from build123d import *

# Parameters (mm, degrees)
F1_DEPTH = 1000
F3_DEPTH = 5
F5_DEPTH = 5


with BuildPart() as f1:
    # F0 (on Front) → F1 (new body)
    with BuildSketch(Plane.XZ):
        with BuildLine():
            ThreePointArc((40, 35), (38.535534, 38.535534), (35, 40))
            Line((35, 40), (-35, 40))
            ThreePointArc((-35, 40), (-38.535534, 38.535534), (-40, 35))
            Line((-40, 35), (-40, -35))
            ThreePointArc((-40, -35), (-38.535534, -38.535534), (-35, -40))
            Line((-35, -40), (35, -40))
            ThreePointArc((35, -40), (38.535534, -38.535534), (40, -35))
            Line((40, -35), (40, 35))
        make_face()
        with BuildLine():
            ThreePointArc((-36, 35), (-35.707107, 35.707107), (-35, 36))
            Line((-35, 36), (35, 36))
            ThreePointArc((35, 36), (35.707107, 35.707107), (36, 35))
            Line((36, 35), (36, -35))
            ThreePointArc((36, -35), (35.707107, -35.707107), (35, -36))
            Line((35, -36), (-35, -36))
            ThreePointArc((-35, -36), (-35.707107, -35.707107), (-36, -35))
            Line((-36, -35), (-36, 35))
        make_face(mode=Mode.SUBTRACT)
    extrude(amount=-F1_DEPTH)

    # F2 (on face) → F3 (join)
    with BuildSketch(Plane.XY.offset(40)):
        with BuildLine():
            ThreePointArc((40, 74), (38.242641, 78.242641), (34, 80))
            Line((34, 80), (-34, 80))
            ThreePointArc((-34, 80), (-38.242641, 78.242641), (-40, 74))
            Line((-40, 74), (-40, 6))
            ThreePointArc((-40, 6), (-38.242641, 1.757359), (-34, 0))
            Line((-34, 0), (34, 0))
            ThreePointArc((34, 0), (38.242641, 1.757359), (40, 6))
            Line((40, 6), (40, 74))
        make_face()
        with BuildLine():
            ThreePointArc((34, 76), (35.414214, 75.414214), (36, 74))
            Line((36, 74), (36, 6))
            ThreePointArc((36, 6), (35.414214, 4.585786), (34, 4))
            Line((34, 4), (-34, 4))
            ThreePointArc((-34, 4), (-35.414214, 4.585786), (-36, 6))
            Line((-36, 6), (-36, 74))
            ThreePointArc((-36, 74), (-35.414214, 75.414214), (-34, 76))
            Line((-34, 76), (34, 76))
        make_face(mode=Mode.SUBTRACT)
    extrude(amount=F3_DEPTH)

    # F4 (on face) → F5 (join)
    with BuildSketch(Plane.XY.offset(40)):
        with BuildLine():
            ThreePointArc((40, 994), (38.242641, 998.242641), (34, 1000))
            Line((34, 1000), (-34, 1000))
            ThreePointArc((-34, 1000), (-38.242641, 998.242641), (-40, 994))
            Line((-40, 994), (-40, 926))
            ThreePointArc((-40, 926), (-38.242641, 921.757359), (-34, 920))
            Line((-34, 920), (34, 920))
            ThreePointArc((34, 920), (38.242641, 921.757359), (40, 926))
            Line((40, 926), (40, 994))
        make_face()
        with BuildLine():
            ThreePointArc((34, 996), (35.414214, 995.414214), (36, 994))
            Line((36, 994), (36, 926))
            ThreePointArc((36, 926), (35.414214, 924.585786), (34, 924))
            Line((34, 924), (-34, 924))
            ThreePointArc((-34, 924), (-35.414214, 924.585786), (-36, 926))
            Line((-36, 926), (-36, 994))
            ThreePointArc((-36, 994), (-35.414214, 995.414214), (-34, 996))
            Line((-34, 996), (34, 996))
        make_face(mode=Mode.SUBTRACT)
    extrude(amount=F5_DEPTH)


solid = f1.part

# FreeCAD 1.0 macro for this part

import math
import FreeCAD as App
import Part
import Sketcher
from FreeCAD import Vector
Q = App.Units.Quantity

doc = App.newDocument("Part")
body = doc.addObject("PartDesign::Body", "Body")

sketch1 = body.newObject("Sketcher::SketchObject", "Sketch")
sketch1.AttachmentSupport = (doc.getObject("XZ_Plane"), [""])
sketch1.MapMode = "FlatFace"
sketch1.addGeometry(Part.ArcOfCircle(Part.Circle(Vector(35, 35, 0), Vector(0, 0, 1), 5), math.radians(0), math.radians(90)), False)
sketch1.addGeometry(Part.LineSegment(Vector(35, 40, 0), Vector(-35, 40, 0)), False)
sketch1.addGeometry(Part.ArcOfCircle(Part.Circle(Vector(-35, 35, 0), Vector(0, 0, 1), 5), math.radians(90), math.radians(180)), False)
sketch1.addGeometry(Part.LineSegment(Vector(-40, 35, 0), Vector(-40, -35, 0)), False)
sketch1.addGeometry(Part.ArcOfCircle(Part.Circle(Vector(-35, -35, 0), Vector(0, 0, 1), 5), math.radians(180), math.radians(270)), False)
sketch1.addGeometry(Part.LineSegment(Vector(-35, -40, 0), Vector(35, -40, 0)), False)
sketch1.addGeometry(Part.ArcOfCircle(Part.Circle(Vector(35, -35, 0), Vector(0, 0, 1), 5), math.radians(-90), math.radians(0)), False)
sketch1.addGeometry(Part.LineSegment(Vector(40, -35, 0), Vector(40, 35, 0)), False)
sketch1.addGeometry(Part.LineSegment(Vector(-36, -35, 0), Vector(-36, 35, 0)), False)
sketch1.addGeometry(Part.ArcOfCircle(Part.Circle(Vector(-35, 35, 0), Vector(0, 0, 1), 1), math.radians(90), math.radians(180)), False)
sketch1.addGeometry(Part.LineSegment(Vector(-35, 36, 0), Vector(35, 36, 0)), False)
sketch1.addGeometry(Part.ArcOfCircle(Part.Circle(Vector(35, 35, 0), Vector(0, 0, 1), 1), math.radians(0), math.radians(90)), False)
sketch1.addGeometry(Part.LineSegment(Vector(36, 35, 0), Vector(36, -35, 0)), False)
sketch1.addGeometry(Part.ArcOfCircle(Part.Circle(Vector(35, -35, 0), Vector(0, 0, 1), 1), math.radians(-90), math.radians(0)), False)
sketch1.addGeometry(Part.LineSegment(Vector(35, -36, 0), Vector(-35, -36, 0)), False)
sketch1.addGeometry(Part.ArcOfCircle(Part.Circle(Vector(-35, -35, 0), Vector(0, 0, 1), 1), math.radians(180), math.radians(270)), False)
sketch1.addConstraint(Sketcher.Constraint("Tangent", 0, 2, 1, 1))
sketch1.addConstraint(Sketcher.Constraint("Tangent", 1, 2, 2, 1))
sketch1.addConstraint(Sketcher.Constraint("Tangent", 2, 2, 3, 1))
sketch1.addConstraint(Sketcher.Constraint("Tangent", 3, 2, 4, 1))
sketch1.addConstraint(Sketcher.Constraint("Tangent", 4, 2, 5, 1))
sketch1.addConstraint(Sketcher.Constraint("Tangent", 5, 2, 6, 1))
sketch1.addConstraint(Sketcher.Constraint("Tangent", 6, 2, 7, 1))
sketch1.addConstraint(Sketcher.Constraint("Tangent", 7, 2, 0, 1))
sketch1.addConstraint(Sketcher.Constraint("Tangent", 8, 2, 9, 2))
sketch1.addConstraint(Sketcher.Constraint("Tangent", 9, 1, 10, 1))
sketch1.addConstraint(Sketcher.Constraint("Tangent", 10, 2, 11, 2))
sketch1.addConstraint(Sketcher.Constraint("Tangent", 11, 1, 12, 1))
sketch1.addConstraint(Sketcher.Constraint("Tangent", 12, 2, 13, 2))
sketch1.addConstraint(Sketcher.Constraint("Tangent", 13, 1, 14, 1))
sketch1.addConstraint(Sketcher.Constraint("Tangent", 14, 2, 15, 2))
sketch1.addConstraint(Sketcher.Constraint("Tangent", 15, 1, 8, 1))
sketch1.addConstraint(Sketcher.Constraint("Horizontal", 1))
sketch1.addConstraint(Sketcher.Constraint("Vertical", 3))
sketch1.addConstraint(Sketcher.Constraint("Horizontal", 5))
sketch1.addConstraint(Sketcher.Constraint("Vertical", 7))
sketch1.addConstraint(Sketcher.Constraint("Vertical", 8))
sketch1.addConstraint(Sketcher.Constraint("Horizontal", 10))
sketch1.addConstraint(Sketcher.Constraint("Vertical", 12))
sketch1.addConstraint(Sketcher.Constraint("Horizontal", 14))
sketch1.addConstraint(Sketcher.Constraint("Coincident", 9, 3, 2, 3))
sketch1.addConstraint(Sketcher.Constraint("Coincident", 11, 3, 0, 3))
sketch1.addConstraint(Sketcher.Constraint("Coincident", 13, 3, 6, 3))
sketch1.addConstraint(Sketcher.Constraint("Equal", 0, 2))
sketch1.addConstraint(Sketcher.Constraint("Equal", 2, 4))
sketch1.addConstraint(Sketcher.Constraint("Equal", 4, 6))
sketch1.addConstraint(Sketcher.Constraint("Equal", 13, 15))
sketch1.addConstraint(Sketcher.Constraint("Symmetric", 0, 3, 4, 3, -1, 1))
sketch1.addConstraint(Sketcher.Constraint("Equal", 14, 3))
sketch1.addConstraint(Sketcher.Constraint("Radius", 0, Q("5 mm")))
sketch1.addConstraint(Sketcher.Constraint("Radius", 9, Q("0.999999 mm")))
sketch1.addConstraint(Sketcher.Constraint("DistanceX", 1, 2, 1, 1, Q("70 mm")))
pad1 = body.newObject("PartDesign::Pad", "Pad")
pad1.Profile = sketch1
pad1.Length = 1000
pad1.Reversed = True

sketch2 = body.newObject("Sketcher::SketchObject", "Sketch001")
sketch2.AttachmentSupport = (doc.getObject("XY_Plane"), [""])
sketch2.MapMode = "FlatFace"
sketch2.AttachmentOffset = App.Placement(Vector(0, 0, 40), App.Rotation())
sketch2.addGeometry(Part.ArcOfCircle(Part.Circle(Vector(34, 74, 0), Vector(0, 0, 1), 6), math.radians(0), math.radians(90)), False)
sketch2.addGeometry(Part.LineSegment(Vector(34, 80, 0), Vector(-34, 80, 0)), False)
sketch2.addGeometry(Part.ArcOfCircle(Part.Circle(Vector(-34, 74, 0), Vector(0, 0, 1), 6), math.radians(90), math.radians(180)), False)
sketch2.addGeometry(Part.LineSegment(Vector(-40, 74, 0), Vector(-40, 6, 0)), False)
sketch2.addGeometry(Part.ArcOfCircle(Part.Circle(Vector(-34, 6, 0), Vector(0, 0, 1), 6), math.radians(180), math.radians(270)), False)
sketch2.addGeometry(Part.LineSegment(Vector(-34, 0, 0), Vector(34, 0, 0)), False)
sketch2.addGeometry(Part.ArcOfCircle(Part.Circle(Vector(34, 6, 0), Vector(0, 0, 1), 6), math.radians(-90), math.radians(0)), False)
sketch2.addGeometry(Part.LineSegment(Vector(40, 6, 0), Vector(40, 74, 0)), False)
sketch2.addGeometry(Part.LineSegment(Vector(-34, 76, 0), Vector(34, 76, 0)), False)
sketch2.addGeometry(Part.ArcOfCircle(Part.Circle(Vector(34, 74, 0), Vector(0, 0, 1), 2), math.radians(0), math.radians(90)), False)
sketch2.addGeometry(Part.LineSegment(Vector(36, 74, 0), Vector(36, 6, 0)), False)
sketch2.addGeometry(Part.ArcOfCircle(Part.Circle(Vector(34, 6, 0), Vector(0, 0, 1), 2), math.radians(-90), math.radians(0)), False)
sketch2.addGeometry(Part.LineSegment(Vector(34, 4, 0), Vector(-34, 4, 0)), False)
sketch2.addGeometry(Part.ArcOfCircle(Part.Circle(Vector(-34, 6, 0), Vector(0, 0, 1), 2), math.radians(180), math.radians(270)), False)
sketch2.addGeometry(Part.LineSegment(Vector(-36, 6, 0), Vector(-36, 74, 0)), False)
sketch2.addGeometry(Part.ArcOfCircle(Part.Circle(Vector(-34, 74, 0), Vector(0, 0, 1), 2), math.radians(90), math.radians(180)), False)
sketch2.addConstraint(Sketcher.Constraint("Tangent", 0, 2, 1, 1))
sketch2.addConstraint(Sketcher.Constraint("Tangent", 1, 2, 2, 1))
sketch2.addConstraint(Sketcher.Constraint("Tangent", 2, 2, 3, 1))
sketch2.addConstraint(Sketcher.Constraint("Tangent", 3, 2, 4, 1))
sketch2.addConstraint(Sketcher.Constraint("Tangent", 4, 2, 5, 1))
sketch2.addConstraint(Sketcher.Constraint("Tangent", 5, 2, 6, 1))
sketch2.addConstraint(Sketcher.Constraint("Tangent", 6, 2, 7, 1))
sketch2.addConstraint(Sketcher.Constraint("Tangent", 7, 2, 0, 1))
sketch2.addConstraint(Sketcher.Constraint("Tangent", 8, 2, 9, 2))
sketch2.addConstraint(Sketcher.Constraint("Tangent", 9, 1, 10, 1))
sketch2.addConstraint(Sketcher.Constraint("Tangent", 10, 2, 11, 2))
sketch2.addConstraint(Sketcher.Constraint("Tangent", 11, 1, 12, 1))
sketch2.addConstraint(Sketcher.Constraint("Tangent", 12, 2, 13, 2))
sketch2.addConstraint(Sketcher.Constraint("Tangent", 13, 1, 14, 1))
sketch2.addConstraint(Sketcher.Constraint("Tangent", 14, 2, 15, 2))
sketch2.addConstraint(Sketcher.Constraint("Tangent", 15, 1, 8, 1))
sketch2.addConstraint(Sketcher.Constraint("Horizontal", 1))
sketch2.addConstraint(Sketcher.Constraint("Vertical", 3))
sketch2.addConstraint(Sketcher.Constraint("Horizontal", 5))
sketch2.addConstraint(Sketcher.Constraint("Vertical", 7))
sketch2.addConstraint(Sketcher.Constraint("Horizontal", 8))
sketch2.addConstraint(Sketcher.Constraint("Vertical", 10))
sketch2.addConstraint(Sketcher.Constraint("Horizontal", 12))
sketch2.addConstraint(Sketcher.Constraint("Vertical", 14))
sketch2.addConstraint(Sketcher.Constraint("Coincident", 9, 3, 0, 3))
sketch2.addConstraint(Sketcher.Constraint("Coincident", 11, 3, 6, 3))
sketch2.addConstraint(Sketcher.Constraint("Coincident", 13, 3, 4, 3))
sketch2.addConstraint(Sketcher.Constraint("Equal", 0, 2))
sketch2.addConstraint(Sketcher.Constraint("Equal", 2, 4))
sketch2.addConstraint(Sketcher.Constraint("Equal", 4, 6))
sketch2.addConstraint(Sketcher.Constraint("Equal", 13, 15))
sketch2.addConstraint(Sketcher.Constraint("Symmetric", 4, 2, 5, 2, -1, 1))
sketch2.addConstraint(Sketcher.Constraint("Equal", 12, 3))
sketch2.addConstraint(Sketcher.Constraint("Radius", 0, Q("5.999999 mm")))
sketch2.addConstraint(Sketcher.Constraint("Radius", 9, Q("1.999999 mm")))
sketch2.addConstraint(Sketcher.Constraint("DistanceX", 1, 2, 1, 1, Q("68 mm")))
pad2 = body.newObject("PartDesign::Pad", "Pad001")
pad2.Profile = sketch2
pad2.Length = 5

sketch3 = body.newObject("Sketcher::SketchObject", "Sketch002")
sketch3.AttachmentSupport = (doc.getObject("XY_Plane"), [""])
sketch3.MapMode = "FlatFace"
sketch3.AttachmentOffset = App.Placement(Vector(0, 0, 40), App.Rotation())
sketch3.addGeometry(Part.ArcOfCircle(Part.Circle(Vector(34, 994, 0), Vector(0, 0, 1), 6), math.radians(0), math.radians(90)), False)
sketch3.addGeometry(Part.LineSegment(Vector(34, 1000, 0), Vector(-34, 1000, 0)), False)
sketch3.addGeometry(Part.ArcOfCircle(Part.Circle(Vector(-34, 994, 0), Vector(0, 0, 1), 6), math.radians(90), math.radians(180)), False)
sketch3.addGeometry(Part.LineSegment(Vector(-40, 994, 0), Vector(-40, 926, 0)), False)
sketch3.addGeometry(Part.ArcOfCircle(Part.Circle(Vector(-34, 926, 0), Vector(0, 0, 1), 6), math.radians(180), math.radians(270)), False)
sketch3.addGeometry(Part.LineSegment(Vector(-34, 920, 0), Vector(34, 920, 0)), False)
sketch3.addGeometry(Part.ArcOfCircle(Part.Circle(Vector(34, 926, 0), Vector(0, 0, 1), 6), math.radians(-90), math.radians(0)), False)
sketch3.addGeometry(Part.LineSegment(Vector(40, 926, 0), Vector(40, 994, 0)), False)
sketch3.addGeometry(Part.LineSegment(Vector(-34, 996, 0), Vector(34, 996, 0)), False)
sketch3.addGeometry(Part.ArcOfCircle(Part.Circle(Vector(34, 994, 0), Vector(0, 0, 1), 2), math.radians(0), math.radians(90)), False)
sketch3.addGeometry(Part.LineSegment(Vector(36, 994, 0), Vector(36, 926, 0)), False)
sketch3.addGeometry(Part.ArcOfCircle(Part.Circle(Vector(34, 926, 0), Vector(0, 0, 1), 2), math.radians(-90), math.radians(0)), False)
sketch3.addGeometry(Part.LineSegment(Vector(34, 924, 0), Vector(-34, 924, 0)), False)
sketch3.addGeometry(Part.ArcOfCircle(Part.Circle(Vector(-34, 926, 0), Vector(0, 0, 1), 2), math.radians(180), math.radians(270)), False)
sketch3.addGeometry(Part.LineSegment(Vector(-36, 926, 0), Vector(-36, 994, 0)), False)
sketch3.addGeometry(Part.ArcOfCircle(Part.Circle(Vector(-34, 994, 0), Vector(0, 0, 1), 2), math.radians(90), math.radians(180)), False)
sketch3.addConstraint(Sketcher.Constraint("Tangent", 0, 2, 1, 1))
sketch3.addConstraint(Sketcher.Constraint("Tangent", 1, 2, 2, 1))
sketch3.addConstraint(Sketcher.Constraint("Tangent", 2, 2, 3, 1))
sketch3.addConstraint(Sketcher.Constraint("Tangent", 3, 2, 4, 1))
sketch3.addConstraint(Sketcher.Constraint("Tangent", 4, 2, 5, 1))
sketch3.addConstraint(Sketcher.Constraint("Tangent", 5, 2, 6, 1))
sketch3.addConstraint(Sketcher.Constraint("Tangent", 6, 2, 7, 1))
sketch3.addConstraint(Sketcher.Constraint("Tangent", 7, 2, 0, 1))
sketch3.addConstraint(Sketcher.Constraint("Tangent", 8, 2, 9, 2))
sketch3.addConstraint(Sketcher.Constraint("Tangent", 9, 1, 10, 1))
sketch3.addConstraint(Sketcher.Constraint("Tangent", 10, 2, 11, 2))
sketch3.addConstraint(Sketcher.Constraint("Tangent", 11, 1, 12, 1))
sketch3.addConstraint(Sketcher.Constraint("Tangent", 12, 2, 13, 2))
sketch3.addConstraint(Sketcher.Constraint("Tangent", 13, 1, 14, 1))
sketch3.addConstraint(Sketcher.Constraint("Tangent", 14, 2, 15, 2))
sketch3.addConstraint(Sketcher.Constraint("Tangent", 15, 1, 8, 1))
sketch3.addConstraint(Sketcher.Constraint("Horizontal", 1))
sketch3.addConstraint(Sketcher.Constraint("Vertical", 3))
sketch3.addConstraint(Sketcher.Constraint("Horizontal", 5))
sketch3.addConstraint(Sketcher.Constraint("Vertical", 7))
sketch3.addConstraint(Sketcher.Constraint("Horizontal", 8))
sketch3.addConstraint(Sketcher.Constraint("Vertical", 10))
sketch3.addConstraint(Sketcher.Constraint("Horizontal", 12))
sketch3.addConstraint(Sketcher.Constraint("Vertical", 14))
sketch3.addConstraint(Sketcher.Constraint("Coincident", 9, 3, 0, 3))
sketch3.addConstraint(Sketcher.Constraint("Coincident", 11, 3, 6, 3))
sketch3.addConstraint(Sketcher.Constraint("Coincident", 13, 3, 4, 3))
sketch3.addConstraint(Sketcher.Constraint("Equal", 0, 2))
sketch3.addConstraint(Sketcher.Constraint("Equal", 2, 4))
sketch3.addConstraint(Sketcher.Constraint("Equal", 4, 6))
sketch3.addConstraint(Sketcher.Constraint("Equal", 13, 15))
sketch3.addConstraint(Sketcher.Constraint("Equal", 12, 3))
sketch3.addConstraint(Sketcher.Constraint("Radius", 0, Q("5.999999 mm")))
sketch3.addConstraint(Sketcher.Constraint("Radius", 9, Q("1.999999 mm")))
sketch3.addConstraint(Sketcher.Constraint("DistanceX", 1, 2, 1, 1, Q("68 mm")))
sketch3.addConstraint(Sketcher.Constraint("DistanceX", -1, 1, 0, 3, Q("34.000001 mm")))
sketch3.addConstraint(Sketcher.Constraint("DistanceY", -1, 1, 0, 3, Q("994.000001 mm")))
pad3 = body.newObject("PartDesign::Pad", "Pad002")
pad3.Profile = sketch3
pad3.Length = 5

doc.recompute()
